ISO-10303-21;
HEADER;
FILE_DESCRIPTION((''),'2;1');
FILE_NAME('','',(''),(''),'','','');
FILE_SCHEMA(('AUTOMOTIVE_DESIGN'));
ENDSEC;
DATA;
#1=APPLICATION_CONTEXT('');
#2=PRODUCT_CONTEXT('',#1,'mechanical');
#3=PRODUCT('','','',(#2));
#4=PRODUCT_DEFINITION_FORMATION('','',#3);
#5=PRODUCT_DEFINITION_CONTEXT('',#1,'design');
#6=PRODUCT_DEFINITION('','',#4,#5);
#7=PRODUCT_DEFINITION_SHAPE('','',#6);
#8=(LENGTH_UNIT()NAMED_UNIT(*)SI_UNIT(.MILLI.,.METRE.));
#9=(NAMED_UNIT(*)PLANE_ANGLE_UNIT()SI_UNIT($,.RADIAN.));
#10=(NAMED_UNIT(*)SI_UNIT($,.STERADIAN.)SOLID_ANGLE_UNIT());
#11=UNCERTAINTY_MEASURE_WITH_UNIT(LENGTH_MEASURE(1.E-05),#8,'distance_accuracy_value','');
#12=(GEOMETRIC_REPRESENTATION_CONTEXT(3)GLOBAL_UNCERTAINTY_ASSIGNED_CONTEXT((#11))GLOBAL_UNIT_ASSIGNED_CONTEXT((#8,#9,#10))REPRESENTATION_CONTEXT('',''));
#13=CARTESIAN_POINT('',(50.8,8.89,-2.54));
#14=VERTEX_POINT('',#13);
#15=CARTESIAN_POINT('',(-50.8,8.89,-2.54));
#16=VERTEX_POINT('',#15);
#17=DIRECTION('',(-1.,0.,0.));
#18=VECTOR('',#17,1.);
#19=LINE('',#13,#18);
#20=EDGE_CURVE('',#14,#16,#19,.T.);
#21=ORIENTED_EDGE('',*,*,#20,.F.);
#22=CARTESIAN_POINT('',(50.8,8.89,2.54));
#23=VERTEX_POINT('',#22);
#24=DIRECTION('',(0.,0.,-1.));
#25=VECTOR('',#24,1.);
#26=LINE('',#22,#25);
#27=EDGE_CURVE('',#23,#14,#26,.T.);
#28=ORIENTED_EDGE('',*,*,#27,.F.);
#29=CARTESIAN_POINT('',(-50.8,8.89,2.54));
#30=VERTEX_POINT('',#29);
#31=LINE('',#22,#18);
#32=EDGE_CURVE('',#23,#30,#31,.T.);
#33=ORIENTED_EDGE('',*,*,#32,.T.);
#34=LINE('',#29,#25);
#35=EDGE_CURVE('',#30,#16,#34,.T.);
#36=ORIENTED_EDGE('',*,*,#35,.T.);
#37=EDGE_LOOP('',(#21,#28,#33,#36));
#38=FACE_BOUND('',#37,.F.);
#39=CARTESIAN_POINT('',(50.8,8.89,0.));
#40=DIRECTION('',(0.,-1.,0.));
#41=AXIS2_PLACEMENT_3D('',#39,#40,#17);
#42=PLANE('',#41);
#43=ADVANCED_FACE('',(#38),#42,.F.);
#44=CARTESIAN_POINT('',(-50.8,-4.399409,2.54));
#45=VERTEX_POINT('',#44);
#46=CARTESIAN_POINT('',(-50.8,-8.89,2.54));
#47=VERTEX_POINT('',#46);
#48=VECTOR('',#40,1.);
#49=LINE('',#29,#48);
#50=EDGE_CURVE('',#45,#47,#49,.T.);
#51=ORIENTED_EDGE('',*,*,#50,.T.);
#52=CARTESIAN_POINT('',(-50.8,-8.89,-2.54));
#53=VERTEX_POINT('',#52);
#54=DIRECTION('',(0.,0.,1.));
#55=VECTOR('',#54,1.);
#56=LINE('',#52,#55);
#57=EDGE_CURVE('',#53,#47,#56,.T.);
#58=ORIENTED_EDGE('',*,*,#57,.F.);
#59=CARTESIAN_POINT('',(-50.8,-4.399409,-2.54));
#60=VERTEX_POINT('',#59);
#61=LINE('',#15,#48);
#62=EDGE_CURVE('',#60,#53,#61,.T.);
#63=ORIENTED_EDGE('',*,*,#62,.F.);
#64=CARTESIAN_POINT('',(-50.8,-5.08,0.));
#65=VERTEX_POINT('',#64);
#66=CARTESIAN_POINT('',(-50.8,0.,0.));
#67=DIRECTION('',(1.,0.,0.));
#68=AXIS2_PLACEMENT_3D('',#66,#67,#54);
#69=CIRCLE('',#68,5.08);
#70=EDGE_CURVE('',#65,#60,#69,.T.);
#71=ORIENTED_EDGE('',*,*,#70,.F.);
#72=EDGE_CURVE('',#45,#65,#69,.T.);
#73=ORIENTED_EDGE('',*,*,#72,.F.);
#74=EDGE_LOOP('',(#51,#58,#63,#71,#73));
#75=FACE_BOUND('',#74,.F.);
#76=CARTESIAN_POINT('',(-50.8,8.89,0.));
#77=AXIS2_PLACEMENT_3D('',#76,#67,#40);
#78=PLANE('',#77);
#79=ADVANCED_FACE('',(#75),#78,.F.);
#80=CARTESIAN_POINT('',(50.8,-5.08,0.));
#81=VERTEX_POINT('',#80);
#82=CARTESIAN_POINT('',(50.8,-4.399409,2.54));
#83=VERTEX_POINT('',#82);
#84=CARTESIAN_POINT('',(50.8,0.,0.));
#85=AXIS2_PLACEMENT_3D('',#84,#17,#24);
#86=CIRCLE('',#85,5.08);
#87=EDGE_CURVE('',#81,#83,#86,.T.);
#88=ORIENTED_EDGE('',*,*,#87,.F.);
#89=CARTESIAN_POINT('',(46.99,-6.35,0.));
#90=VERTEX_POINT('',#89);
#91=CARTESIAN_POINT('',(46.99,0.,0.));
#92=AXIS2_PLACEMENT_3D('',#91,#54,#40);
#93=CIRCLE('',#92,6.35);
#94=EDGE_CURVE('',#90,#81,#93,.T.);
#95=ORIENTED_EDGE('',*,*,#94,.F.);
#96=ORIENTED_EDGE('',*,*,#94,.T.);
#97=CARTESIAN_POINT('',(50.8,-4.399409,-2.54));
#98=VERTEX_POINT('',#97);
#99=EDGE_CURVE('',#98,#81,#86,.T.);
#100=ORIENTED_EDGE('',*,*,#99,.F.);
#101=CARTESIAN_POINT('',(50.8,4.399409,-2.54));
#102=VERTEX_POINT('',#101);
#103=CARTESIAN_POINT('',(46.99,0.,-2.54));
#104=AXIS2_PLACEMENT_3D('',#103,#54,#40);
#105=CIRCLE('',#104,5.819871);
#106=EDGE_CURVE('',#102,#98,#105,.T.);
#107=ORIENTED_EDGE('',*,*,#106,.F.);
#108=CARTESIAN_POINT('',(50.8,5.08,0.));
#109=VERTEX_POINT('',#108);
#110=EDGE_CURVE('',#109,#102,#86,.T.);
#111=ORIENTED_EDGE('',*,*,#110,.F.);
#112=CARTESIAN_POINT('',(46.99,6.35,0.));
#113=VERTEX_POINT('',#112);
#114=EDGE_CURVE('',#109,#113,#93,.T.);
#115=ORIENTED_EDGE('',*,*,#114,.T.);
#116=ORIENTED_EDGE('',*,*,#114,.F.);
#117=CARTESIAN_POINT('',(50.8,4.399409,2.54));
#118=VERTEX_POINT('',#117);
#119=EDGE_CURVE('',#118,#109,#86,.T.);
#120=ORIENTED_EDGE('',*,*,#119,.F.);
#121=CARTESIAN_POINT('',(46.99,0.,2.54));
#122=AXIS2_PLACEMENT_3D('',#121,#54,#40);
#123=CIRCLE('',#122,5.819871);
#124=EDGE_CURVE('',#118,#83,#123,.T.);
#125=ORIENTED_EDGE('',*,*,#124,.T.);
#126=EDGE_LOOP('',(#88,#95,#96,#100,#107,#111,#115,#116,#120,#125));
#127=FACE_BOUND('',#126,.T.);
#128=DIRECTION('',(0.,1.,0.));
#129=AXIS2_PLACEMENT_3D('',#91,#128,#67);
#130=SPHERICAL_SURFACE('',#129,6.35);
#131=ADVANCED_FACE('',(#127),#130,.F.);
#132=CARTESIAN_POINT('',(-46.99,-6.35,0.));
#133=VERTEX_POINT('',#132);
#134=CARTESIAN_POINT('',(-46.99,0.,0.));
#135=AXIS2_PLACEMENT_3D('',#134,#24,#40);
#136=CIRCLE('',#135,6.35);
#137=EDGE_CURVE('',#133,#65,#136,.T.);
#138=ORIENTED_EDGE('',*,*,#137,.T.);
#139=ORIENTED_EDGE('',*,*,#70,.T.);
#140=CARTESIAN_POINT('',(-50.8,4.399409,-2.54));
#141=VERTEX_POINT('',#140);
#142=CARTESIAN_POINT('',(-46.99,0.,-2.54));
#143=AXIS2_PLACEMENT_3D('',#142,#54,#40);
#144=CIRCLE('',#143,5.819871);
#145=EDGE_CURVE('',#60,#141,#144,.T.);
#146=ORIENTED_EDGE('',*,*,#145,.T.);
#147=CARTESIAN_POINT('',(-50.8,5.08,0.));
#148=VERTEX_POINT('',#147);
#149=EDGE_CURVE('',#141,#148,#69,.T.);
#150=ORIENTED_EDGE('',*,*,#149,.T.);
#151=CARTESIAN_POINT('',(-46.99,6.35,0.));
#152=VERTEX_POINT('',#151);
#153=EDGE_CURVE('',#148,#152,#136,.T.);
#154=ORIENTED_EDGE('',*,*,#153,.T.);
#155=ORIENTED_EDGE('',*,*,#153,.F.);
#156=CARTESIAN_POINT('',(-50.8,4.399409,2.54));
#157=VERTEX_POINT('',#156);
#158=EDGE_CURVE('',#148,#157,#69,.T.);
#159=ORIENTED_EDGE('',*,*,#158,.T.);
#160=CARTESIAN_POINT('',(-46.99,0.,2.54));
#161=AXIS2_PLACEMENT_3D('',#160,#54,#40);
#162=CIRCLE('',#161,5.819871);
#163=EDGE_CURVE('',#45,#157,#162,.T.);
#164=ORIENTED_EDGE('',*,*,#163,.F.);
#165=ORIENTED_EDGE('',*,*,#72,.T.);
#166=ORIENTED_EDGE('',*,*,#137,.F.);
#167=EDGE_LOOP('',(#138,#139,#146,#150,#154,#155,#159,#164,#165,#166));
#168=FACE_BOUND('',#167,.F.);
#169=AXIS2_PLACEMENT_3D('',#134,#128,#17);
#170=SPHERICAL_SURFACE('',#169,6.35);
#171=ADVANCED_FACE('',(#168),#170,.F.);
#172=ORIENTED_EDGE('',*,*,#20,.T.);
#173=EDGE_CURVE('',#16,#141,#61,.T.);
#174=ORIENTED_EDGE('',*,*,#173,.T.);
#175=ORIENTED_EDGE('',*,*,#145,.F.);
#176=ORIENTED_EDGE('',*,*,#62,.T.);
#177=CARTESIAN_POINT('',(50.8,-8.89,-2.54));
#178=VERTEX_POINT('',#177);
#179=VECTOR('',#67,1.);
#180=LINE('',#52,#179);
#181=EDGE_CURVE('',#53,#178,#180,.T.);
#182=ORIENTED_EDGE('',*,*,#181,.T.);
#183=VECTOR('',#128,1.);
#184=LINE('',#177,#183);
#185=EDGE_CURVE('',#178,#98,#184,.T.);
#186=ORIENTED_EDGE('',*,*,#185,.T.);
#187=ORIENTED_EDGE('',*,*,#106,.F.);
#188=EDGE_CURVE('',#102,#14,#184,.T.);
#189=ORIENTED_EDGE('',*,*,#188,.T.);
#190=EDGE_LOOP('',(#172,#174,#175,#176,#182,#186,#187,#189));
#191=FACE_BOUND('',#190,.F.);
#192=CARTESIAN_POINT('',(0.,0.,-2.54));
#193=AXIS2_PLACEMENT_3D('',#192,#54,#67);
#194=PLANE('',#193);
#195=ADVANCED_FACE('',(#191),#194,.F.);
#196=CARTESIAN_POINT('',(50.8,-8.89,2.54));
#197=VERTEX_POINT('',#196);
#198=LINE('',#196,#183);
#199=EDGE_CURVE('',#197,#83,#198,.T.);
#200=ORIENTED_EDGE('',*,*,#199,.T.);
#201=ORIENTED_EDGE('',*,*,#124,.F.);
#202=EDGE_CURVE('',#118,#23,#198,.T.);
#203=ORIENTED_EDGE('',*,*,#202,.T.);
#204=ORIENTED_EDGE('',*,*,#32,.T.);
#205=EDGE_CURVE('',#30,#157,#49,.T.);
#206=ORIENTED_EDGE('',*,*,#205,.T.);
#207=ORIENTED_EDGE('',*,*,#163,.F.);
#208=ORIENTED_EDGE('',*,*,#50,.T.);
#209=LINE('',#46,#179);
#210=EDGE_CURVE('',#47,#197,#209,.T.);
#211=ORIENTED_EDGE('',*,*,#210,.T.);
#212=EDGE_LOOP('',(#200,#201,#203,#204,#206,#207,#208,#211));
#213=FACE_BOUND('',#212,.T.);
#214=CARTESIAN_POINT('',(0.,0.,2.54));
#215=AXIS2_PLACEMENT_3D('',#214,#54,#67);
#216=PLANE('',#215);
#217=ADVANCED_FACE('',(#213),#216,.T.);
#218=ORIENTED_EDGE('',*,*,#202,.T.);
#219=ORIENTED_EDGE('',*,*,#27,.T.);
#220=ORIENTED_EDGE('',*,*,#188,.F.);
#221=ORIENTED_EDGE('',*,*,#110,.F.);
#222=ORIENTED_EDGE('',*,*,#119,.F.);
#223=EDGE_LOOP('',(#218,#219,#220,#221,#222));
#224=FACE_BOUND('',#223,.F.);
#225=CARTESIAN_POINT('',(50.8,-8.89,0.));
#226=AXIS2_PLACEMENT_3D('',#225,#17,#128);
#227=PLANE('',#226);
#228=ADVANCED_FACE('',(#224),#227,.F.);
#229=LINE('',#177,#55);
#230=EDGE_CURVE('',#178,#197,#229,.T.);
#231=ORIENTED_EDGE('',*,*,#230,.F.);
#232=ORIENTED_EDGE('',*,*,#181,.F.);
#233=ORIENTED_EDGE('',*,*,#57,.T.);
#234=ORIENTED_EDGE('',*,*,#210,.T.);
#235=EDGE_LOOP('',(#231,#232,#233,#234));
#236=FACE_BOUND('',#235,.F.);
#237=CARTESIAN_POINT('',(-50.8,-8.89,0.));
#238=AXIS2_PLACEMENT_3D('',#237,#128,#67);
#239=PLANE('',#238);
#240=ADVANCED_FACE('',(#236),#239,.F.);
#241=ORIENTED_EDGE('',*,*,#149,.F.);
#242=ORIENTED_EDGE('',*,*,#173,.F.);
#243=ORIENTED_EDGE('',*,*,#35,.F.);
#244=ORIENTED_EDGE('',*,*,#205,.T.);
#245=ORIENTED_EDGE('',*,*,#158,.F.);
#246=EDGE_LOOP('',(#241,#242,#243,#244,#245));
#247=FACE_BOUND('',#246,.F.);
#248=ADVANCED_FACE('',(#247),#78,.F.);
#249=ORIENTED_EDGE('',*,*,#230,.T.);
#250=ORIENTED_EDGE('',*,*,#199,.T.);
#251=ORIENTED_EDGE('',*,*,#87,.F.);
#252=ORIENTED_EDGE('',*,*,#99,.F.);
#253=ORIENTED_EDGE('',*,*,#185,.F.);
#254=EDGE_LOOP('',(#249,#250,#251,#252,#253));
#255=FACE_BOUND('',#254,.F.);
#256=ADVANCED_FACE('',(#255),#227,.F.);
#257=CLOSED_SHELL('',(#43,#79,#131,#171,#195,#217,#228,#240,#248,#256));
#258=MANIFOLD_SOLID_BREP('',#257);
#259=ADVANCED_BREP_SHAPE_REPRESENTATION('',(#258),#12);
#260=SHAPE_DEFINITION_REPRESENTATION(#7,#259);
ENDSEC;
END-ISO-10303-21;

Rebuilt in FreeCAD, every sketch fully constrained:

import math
import FreeCAD as App
import Part
import Sketcher
from FreeCAD import Vector
Q = App.Units.Quantity


def add_polygon(sketch, points):
    """Adds a closed chain of lines whose ends are joined by coincident constraints."""
    first, n = sketch.GeometryCount, len(points)
    for a, b in zip(points, points[1:] + points[:1]):
        sketch.addGeometry(Part.LineSegment(App.Vector(*a, 0), App.Vector(*b, 0)), False)
    for i in range(n):
        sketch.addConstraint(Sketcher.Constraint("Coincident", first + i, 2, first + (i + 1) % n, 1))

doc = App.newDocument("Part")
body = doc.addObject("PartDesign::Body", "Body")

# Sketch on XY plane
sketch1 = body.newObject("Sketcher::SketchObject", "Sketch")
sketch1.AttachmentSupport = (doc.getObject("XY_Plane"), [""])
sketch1.MapMode = "FlatFace"
add_polygon(sketch1, [(-51, 9), (-51, -9), (51, -9), (51, 9)])  # lines 0-3
sketch1.addConstraint(Sketcher.Constraint("Vertical", 0))
sketch1.addConstraint(Sketcher.Constraint("Horizontal", 1))
sketch1.addConstraint(Sketcher.Constraint("Vertical", 2))
sketch1.addConstraint(Sketcher.Constraint("Horizontal", 3))
sketch1.addConstraint(Sketcher.Constraint("Symmetric", 0, 2, 2, 2, -1, 1))
sketch1.addConstraint(Sketcher.Constraint("DistanceX", 1, 1, 1, 2, Q("4 in")))
sketch1.addConstraint(Sketcher.Constraint("DistanceY", 0, 2, 0, 1, Q("0.7 in")))
pad1 = body.newObject("PartDesign::Pad", "Pad")
pad1.Profile = sketch1
pad1.Length = Q("0.2 in")
pad1.Midplane = True

# Sketch on XY plane
sketch2 = body.newObject("Sketcher::SketchObject", "Sketch001")
sketch2.AttachmentSupport = (doc.getObject("XY_Plane"), [""])
sketch2.MapMode = "FlatFace"
sketch2.addGeometry(Part.LineSegment(Vector(47, 6, 0), Vector(47, -6, 0)), False)
sketch2.addGeometry(Part.ArcOfCircle(Part.Circle(Vector(47, 0, 0), Vector(0, 0, 1), 6), math.radians(-90), math.radians(90)), False)
sketch2.addGeometry(Part.LineSegment(Vector(47, 6, 0), Vector(47, -6, 0)), True)  # axis
sketch2.addConstraint(Sketcher.Constraint("Coincident", 0, 1, 1, 2))
sketch2.addConstraint(Sketcher.Constraint("Coincident", 1, 1, 0, 2))
sketch2.addConstraint(Sketcher.Constraint("Vertical", 0))
sketch2.addConstraint(Sketcher.Constraint("Vertical", 2))
sketch2.addConstraint(Sketcher.Constraint("Coincident", 2, 1, 0, 1))
sketch2.addConstraint(Sketcher.Constraint("PointOnObject", 1, 3, -1))
sketch2.addConstraint(Sketcher.Constraint("Vertical", 1, 3, 0, 1))
sketch2.addConstraint(Sketcher.Constraint("Equal", 0, 2))
sketch2.addConstraint(Sketcher.Constraint("Radius", 1, Q("0.25 in")))
sketch2.addConstraint(Sketcher.Constraint("DistanceX", -1, 1, 1, 3, Q("1.85 in")))
groove = body.newObject("PartDesign::Groove", "Groove")
groove.Profile = sketch2
groove.ReferenceAxis = (sketch2, ["Axis0"])
groove.Angle = 360
doc.recompute()

mirrored = body.newObject("PartDesign::Mirrored", "Mirrored")
mirrored.Originals = [groove]
mirrored.MirrorPlane = (doc.getObject("YZ_Plane"), [""])
body.Tip = mirrored

doc.recompute()
